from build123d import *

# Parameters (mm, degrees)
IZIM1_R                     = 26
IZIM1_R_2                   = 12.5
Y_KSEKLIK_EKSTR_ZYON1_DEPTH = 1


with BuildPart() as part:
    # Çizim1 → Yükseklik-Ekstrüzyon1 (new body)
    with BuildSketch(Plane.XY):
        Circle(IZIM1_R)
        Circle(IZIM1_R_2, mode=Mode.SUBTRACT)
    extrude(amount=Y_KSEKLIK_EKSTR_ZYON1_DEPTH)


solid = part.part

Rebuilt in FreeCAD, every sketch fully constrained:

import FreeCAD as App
import Part
import Sketcher
Q = App.Units.Quantity

doc = App.newDocument("Part")
body = doc.addObject("PartDesign::Body", "Body")

sketch1 = doc.addObject("Sketcher::SketchObject", "Sketch")
body.addObject(sketch1)
sketch1.AttachmentSupport = (doc.XY_Plane, [""])
sketch1.MapMode = "FlatFace"
sketch1.addGeometry(Part.Circle(App.Vector(0, 0, 0), App.Vector(0, 0, 1), 26), False)
sketch1.addGeometry(Part.Circle(App.Vector(0, 0, 0), App.Vector(0, 0, 1), 12), False)
sketch1.addConstraint(Sketcher.Constraint("Coincident", 0, 3, -1, 1))
sketch1.addConstraint(Sketcher.Constraint("Coincident", 1, 3, -1, 1))
sketch1.addConstraint(Sketcher.Constraint("Diameter", 0, Q("52 mm")))
sketch1.addConstraint(Sketcher.Constraint("Diameter", 1, Q("25 mm")))
pad1 = doc.addObject("PartDesign::Pad", "Pad")
body.addObject(pad1)
pad1.Profile = sketch1
pad1.Length = 1

doc.recompute()
